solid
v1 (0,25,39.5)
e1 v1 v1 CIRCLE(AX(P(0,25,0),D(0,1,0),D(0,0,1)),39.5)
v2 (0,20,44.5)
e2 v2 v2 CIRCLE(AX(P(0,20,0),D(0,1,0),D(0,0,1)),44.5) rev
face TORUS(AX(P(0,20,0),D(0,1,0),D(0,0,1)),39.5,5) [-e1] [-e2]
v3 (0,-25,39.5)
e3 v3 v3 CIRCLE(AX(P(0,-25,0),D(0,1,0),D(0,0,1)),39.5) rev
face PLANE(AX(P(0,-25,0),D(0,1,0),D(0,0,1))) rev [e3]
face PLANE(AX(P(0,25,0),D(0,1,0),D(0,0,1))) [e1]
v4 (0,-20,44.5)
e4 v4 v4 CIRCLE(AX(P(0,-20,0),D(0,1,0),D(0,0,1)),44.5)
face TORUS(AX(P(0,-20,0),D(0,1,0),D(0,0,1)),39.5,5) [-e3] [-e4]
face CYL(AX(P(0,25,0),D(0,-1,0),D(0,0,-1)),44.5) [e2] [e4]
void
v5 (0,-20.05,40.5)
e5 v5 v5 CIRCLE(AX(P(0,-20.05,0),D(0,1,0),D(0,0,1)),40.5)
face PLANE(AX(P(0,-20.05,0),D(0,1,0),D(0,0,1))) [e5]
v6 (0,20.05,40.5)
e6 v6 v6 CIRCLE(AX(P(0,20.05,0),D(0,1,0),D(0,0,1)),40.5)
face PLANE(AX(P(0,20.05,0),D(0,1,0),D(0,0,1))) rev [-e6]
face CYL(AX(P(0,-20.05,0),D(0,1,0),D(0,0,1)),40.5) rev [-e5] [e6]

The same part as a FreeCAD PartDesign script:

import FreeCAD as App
import Part
import Sketcher


def edges_at(feature, points):
    """Names of the edges that pass closest to the given points."""
    edges = feature.Shape.Edges
    near = lambda p: min(range(len(edges)), key=lambda i: edges[i].distToShape(Part.Vertex(*p))[0])
    return sorted({f"Edge{near(p) + 1}" for p in points})

doc = App.newDocument("Part")
body = doc.addObject("PartDesign::Body", "Body")

# Sketch on XZ plane
sketch1 = body.newObject("Sketcher::SketchObject", "Sketch")
sketch1.AttachmentSupport = (doc.getObject("XZ_Plane"), [""])
sketch1.MapMode = "FlatFace"
sketch1.addGeometry(Part.Circle(App.Vector(0, 0, 0), App.Vector(0, 0, 1), 44), False)
sketch1.addConstraint([
    Sketcher.Constraint("Coincident", 0, 3, -1, 1),
    Sketcher.Constraint("Diameter", 0, 89.0),
])
pad1 = body.newObject("PartDesign::Pad", "Pad")
pad1.Profile = sketch1
pad1.Length = 50
pad1.Midplane = True
doc.recompute()

fillet = body.newObject("PartDesign::Fillet", "Fillet")
fillet.Base = (pad1, edges_at(pad1, [(-44.5, -25, 0), (-44.5, 25, 0)]))
fillet.Radius = 5

# Sketch on XZ plane
sketch2 = body.newObject("Sketcher::SketchObject", "Sketch001")
sketch2.AttachmentSupport = (doc.getObject("XZ_Plane"), [""])
sketch2.MapMode = "FlatFace"
sketch2.addGeometry(Part.Circle(App.Vector(0, 0, 0), App.Vector(0, 0, 1), 40), False)
sketch2.addConstraint([
    Sketcher.Constraint("Coincident", 0, 3, -1, 1),
    Sketcher.Constraint("Diameter", 0, 81.0),
])
pocket1 = body.newObject("PartDesign::Pocket", "Pocket")
pocket1.Profile = sketch2
pocket1.Length = 40.1
pocket1.Midplane = True

doc.recompute()
